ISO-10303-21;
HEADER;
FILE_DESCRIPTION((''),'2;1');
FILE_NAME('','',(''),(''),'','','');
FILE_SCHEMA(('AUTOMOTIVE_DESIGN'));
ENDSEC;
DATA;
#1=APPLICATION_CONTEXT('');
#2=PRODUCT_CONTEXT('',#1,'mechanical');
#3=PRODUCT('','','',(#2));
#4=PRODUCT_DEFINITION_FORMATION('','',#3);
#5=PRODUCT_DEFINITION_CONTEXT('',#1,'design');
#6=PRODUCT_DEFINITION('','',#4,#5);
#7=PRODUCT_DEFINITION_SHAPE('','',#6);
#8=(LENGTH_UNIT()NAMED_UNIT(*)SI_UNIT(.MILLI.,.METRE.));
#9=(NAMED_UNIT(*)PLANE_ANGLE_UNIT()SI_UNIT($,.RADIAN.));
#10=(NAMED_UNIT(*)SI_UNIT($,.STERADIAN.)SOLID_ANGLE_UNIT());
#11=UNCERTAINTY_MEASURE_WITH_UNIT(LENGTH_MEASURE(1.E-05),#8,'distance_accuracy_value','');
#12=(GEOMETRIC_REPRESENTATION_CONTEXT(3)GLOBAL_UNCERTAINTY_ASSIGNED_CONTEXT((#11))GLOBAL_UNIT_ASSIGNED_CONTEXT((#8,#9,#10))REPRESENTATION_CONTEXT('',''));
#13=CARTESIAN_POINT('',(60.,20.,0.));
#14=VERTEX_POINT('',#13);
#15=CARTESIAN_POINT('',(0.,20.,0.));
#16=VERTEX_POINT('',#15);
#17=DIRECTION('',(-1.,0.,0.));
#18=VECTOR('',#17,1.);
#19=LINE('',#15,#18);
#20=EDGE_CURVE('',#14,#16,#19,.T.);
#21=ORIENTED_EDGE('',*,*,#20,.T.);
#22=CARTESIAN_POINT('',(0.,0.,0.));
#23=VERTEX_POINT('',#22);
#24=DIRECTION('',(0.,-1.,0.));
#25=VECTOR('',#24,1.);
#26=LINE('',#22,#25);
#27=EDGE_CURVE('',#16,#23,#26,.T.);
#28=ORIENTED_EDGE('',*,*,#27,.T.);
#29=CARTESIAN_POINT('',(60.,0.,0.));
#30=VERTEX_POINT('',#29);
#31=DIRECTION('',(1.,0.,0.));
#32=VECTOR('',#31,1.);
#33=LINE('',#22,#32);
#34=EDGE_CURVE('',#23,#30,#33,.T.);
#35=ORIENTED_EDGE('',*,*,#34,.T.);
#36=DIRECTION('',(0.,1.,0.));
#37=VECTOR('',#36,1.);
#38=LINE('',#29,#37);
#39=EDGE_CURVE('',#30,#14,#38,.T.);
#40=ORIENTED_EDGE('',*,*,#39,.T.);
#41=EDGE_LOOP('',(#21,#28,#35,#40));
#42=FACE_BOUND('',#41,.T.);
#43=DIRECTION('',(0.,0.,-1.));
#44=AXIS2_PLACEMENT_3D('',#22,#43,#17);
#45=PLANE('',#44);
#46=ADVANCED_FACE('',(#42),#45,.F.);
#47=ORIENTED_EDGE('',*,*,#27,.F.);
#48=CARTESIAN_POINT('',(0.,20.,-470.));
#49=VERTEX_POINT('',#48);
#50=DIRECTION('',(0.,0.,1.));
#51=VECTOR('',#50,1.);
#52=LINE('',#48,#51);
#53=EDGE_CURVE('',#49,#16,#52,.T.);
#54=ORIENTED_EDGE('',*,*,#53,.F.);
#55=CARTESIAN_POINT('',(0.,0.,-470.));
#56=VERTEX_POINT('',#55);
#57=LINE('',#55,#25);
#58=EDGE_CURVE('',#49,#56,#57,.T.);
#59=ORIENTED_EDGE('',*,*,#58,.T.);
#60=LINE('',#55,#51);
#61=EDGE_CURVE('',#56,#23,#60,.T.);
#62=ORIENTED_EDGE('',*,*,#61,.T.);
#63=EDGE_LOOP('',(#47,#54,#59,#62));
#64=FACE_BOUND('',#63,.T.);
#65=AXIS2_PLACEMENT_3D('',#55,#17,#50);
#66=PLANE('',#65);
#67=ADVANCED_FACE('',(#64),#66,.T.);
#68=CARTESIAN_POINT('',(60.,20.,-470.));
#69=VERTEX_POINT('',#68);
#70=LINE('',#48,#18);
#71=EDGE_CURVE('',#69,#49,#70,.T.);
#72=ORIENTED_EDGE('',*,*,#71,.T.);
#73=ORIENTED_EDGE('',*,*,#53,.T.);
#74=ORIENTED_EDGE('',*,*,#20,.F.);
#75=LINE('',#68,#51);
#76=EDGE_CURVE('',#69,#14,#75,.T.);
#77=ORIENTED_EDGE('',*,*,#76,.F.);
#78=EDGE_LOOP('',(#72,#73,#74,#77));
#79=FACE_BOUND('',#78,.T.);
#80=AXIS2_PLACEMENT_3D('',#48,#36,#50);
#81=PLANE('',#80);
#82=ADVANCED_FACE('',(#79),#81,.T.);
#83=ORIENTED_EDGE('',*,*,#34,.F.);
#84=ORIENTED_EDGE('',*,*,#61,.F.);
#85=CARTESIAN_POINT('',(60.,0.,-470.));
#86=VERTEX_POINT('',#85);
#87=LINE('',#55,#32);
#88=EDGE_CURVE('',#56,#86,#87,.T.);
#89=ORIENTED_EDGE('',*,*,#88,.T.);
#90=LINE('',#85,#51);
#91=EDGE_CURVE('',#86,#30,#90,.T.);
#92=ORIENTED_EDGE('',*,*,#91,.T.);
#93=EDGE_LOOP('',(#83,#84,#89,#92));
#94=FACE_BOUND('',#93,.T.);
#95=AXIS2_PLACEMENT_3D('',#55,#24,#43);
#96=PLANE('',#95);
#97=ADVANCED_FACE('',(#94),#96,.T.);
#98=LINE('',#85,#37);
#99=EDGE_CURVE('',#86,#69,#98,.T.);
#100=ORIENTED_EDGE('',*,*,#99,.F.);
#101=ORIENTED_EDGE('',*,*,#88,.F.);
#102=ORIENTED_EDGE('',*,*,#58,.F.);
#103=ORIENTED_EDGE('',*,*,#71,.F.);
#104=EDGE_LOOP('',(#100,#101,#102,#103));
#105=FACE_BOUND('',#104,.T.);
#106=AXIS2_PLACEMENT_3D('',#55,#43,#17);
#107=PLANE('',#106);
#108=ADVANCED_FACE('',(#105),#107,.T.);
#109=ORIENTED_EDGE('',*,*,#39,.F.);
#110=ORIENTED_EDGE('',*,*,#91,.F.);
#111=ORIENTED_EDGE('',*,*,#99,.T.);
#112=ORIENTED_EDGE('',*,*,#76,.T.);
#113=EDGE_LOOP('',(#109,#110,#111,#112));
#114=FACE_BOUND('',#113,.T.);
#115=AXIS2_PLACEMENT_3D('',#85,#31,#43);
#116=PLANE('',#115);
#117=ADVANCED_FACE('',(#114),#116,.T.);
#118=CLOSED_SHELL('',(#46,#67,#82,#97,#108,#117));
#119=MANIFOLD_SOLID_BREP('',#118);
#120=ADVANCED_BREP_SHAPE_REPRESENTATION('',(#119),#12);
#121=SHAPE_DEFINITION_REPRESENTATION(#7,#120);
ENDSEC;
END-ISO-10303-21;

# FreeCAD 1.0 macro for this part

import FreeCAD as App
import Part
import Sketcher
from FreeCAD import Vector


def add_polygon(sketch, points):
    """Adds a closed chain of lines whose ends are joined by coincident constraints."""
    first, n = sketch.GeometryCount, len(points)
    for a, b in zip(points, points[1:] + points[:1]):
        sketch.addGeometry(Part.LineSegment(App.Vector(*a, 0), App.Vector(*b, 0)), False)
    for i in range(n):
        sketch.addConstraint(Sketcher.Constraint("Coincident", first + i, 2, first + (i + 1) % n, 1))

doc = App.newDocument("Part")
params = doc.addObject("Spreadsheet::Sheet", "Params")
for row, (alias, value) in enumerate([
    ("sketch1_width", "60 mm"),
    ("sketch1_height", "20 mm"),
    ("pad1_length", "470 mm"),
], start=1):
    params.set(f"A{row}", alias)
    params.set(f"B{row}", "=" + value)
    params.setAlias(f"B{row}", alias)

body = doc.addObject("PartDesign::Body", "Body")

sketch1 = body.newObject("Sketcher::SketchObject", "Sketch")
sketch1.AttachmentSupport = (doc.getObject("XY_Plane"), [""])
sketch1.MapMode = "FlatFace"
add_polygon(sketch1, [(0, 20), (0, 0), (60, 0), (60, 20)])
sketch1.addConstraint([
    Sketcher.Constraint("Vertical", 0),
    Sketcher.Constraint("Horizontal", 1),
    Sketcher.Constraint("Vertical", 2),
    Sketcher.Constraint("Horizontal", 3),
    Sketcher.Constraint("Coincident", 0, 2, -1, 1),
    Sketcher.Constraint("DistanceX", 1, 1, 1, 2, 60.0),
    Sketcher.Constraint("DistanceY", 0, 2, 0, 1, 20.0),
])
sketch1.setExpression("Constraints[9]", "Params.sketch1_width")
sketch1.setExpression("Constraints[10]", "Params.sketch1_height")
pad1 = body.newObject("PartDesign::Pad", "Pad")
pad1.Profile = sketch1
pad1.setExpression("Length", "Params.pad1_length")
pad1.Reversed = True

doc.recompute()
